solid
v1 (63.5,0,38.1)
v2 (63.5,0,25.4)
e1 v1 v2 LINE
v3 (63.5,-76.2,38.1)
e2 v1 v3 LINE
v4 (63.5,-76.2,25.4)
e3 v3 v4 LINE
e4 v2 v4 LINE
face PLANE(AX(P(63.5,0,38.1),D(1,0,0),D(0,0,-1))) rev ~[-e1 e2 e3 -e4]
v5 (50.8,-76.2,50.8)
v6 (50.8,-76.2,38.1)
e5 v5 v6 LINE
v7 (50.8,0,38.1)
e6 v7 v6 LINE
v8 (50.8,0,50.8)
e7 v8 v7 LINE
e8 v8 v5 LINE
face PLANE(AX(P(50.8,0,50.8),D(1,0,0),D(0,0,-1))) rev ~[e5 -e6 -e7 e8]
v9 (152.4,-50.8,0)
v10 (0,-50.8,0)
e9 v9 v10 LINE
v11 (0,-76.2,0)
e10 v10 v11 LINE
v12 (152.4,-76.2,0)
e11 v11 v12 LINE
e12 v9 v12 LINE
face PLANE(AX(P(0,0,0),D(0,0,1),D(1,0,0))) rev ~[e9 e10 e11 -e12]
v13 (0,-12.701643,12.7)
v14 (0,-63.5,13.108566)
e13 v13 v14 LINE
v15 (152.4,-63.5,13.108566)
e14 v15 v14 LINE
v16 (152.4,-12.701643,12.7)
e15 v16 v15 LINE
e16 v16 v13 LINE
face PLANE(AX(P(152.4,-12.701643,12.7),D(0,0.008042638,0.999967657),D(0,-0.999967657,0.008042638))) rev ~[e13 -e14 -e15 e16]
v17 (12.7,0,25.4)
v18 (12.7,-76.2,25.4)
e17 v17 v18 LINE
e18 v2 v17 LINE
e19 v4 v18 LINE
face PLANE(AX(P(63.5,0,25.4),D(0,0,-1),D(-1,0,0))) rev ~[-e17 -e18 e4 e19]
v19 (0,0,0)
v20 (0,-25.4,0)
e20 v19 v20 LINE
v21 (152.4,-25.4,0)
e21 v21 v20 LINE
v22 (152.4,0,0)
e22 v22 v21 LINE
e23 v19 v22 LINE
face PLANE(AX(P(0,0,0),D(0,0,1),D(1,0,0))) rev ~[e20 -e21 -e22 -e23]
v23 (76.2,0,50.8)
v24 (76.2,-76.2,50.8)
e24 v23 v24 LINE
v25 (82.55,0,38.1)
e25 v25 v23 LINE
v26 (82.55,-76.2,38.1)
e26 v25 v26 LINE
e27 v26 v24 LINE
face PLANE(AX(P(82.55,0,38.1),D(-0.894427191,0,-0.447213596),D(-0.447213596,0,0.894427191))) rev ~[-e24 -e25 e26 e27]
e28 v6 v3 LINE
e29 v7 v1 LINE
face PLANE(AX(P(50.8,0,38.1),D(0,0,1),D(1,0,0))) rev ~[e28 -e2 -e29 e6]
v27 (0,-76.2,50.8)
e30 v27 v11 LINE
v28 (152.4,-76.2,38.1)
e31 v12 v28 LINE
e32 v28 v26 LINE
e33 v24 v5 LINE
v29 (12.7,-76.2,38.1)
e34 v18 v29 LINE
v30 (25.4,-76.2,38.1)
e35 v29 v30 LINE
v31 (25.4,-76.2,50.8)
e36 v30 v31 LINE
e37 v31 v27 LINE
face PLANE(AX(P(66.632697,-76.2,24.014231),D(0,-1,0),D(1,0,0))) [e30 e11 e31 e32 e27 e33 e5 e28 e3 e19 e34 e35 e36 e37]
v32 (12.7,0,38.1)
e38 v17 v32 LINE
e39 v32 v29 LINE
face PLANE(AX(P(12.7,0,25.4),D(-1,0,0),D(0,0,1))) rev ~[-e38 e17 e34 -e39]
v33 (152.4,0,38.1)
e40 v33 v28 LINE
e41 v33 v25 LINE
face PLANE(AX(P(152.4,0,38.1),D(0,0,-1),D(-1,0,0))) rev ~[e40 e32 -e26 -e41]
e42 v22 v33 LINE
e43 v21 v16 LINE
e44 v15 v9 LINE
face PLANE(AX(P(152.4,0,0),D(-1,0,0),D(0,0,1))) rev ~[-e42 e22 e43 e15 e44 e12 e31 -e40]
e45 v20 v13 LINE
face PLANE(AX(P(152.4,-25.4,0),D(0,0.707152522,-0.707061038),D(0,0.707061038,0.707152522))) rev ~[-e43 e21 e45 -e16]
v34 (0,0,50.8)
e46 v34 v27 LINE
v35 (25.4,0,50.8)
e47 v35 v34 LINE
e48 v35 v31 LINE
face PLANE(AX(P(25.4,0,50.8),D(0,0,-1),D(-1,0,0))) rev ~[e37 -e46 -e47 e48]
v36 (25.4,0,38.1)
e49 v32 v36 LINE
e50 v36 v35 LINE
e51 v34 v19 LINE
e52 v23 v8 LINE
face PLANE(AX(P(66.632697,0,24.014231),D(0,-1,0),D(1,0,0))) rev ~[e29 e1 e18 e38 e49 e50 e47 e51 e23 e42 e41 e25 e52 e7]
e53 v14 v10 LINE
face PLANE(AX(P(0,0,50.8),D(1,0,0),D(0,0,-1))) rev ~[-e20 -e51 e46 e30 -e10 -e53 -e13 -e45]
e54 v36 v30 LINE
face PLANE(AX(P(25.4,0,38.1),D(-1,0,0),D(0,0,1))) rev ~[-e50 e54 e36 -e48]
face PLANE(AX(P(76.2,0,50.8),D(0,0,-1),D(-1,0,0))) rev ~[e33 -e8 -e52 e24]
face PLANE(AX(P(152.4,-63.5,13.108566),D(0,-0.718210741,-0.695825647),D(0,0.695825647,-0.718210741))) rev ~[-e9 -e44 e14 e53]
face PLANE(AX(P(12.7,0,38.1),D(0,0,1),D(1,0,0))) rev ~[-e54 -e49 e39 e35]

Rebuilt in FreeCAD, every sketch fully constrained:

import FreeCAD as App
import Part
import Sketcher
Q = App.Units.Quantity


def add_polygon(sketch, points):
    """Adds a closed chain of lines whose ends are joined by coincident constraints."""
    first, n = sketch.GeometryCount, len(points)
    for a, b in zip(points, points[1:] + points[:1]):
        sketch.addGeometry(Part.LineSegment(App.Vector(*a, 0), App.Vector(*b, 0)), False)
    for i in range(n):
        sketch.addConstraint(Sketcher.Constraint("Coincident", first + i, 2, first + (i + 1) % n, 1))

doc = App.newDocument("Part")
body = doc.addObject("PartDesign::Body", "Body")

# Sketch on XZ plane
sketch1 = body.newObject("Sketcher::SketchObject", "Sketch")
sketch1.AttachmentSupport = (doc.getObject("XZ_Plane"), [""])
sketch1.MapMode = "FlatFace"
add_polygon(sketch1, [(0, 51), (0, 0), (152, 0), (152, 38), (83, 38), (76, 51), (51, 51), (51, 38), (64, 38), (64, 25), (13, 25), (13, 38), (25, 38), (25, 51)])  # lines 0-13
sketch1.addConstraint(Sketcher.Constraint("Vertical", 0))
sketch1.addConstraint(Sketcher.Constraint("Horizontal", 1))
sketch1.addConstraint(Sketcher.Constraint("Vertical", 2))
sketch1.addConstraint(Sketcher.Constraint("Horizontal", 3))
sketch1.addConstraint(Sketcher.Constraint("Horizontal", 5))
sketch1.addConstraint(Sketcher.Constraint("Vertical", 6))
sketch1.addConstraint(Sketcher.Constraint("Horizontal", 7))
sketch1.addConstraint(Sketcher.Constraint("Vertical", 8))
sketch1.addConstraint(Sketcher.Constraint("Horizontal", 9))
sketch1.addConstraint(Sketcher.Constraint("Vertical", 10))
sketch1.addConstraint(Sketcher.Constraint("Horizontal", 11))
sketch1.addConstraint(Sketcher.Constraint("Vertical", 12))
sketch1.addConstraint(Sketcher.Constraint("Horizontal", 13))
sketch1.addConstraint(Sketcher.Constraint("Coincident", 0, 2, -1, 1))
sketch1.addConstraint(Sketcher.Constraint("Horizontal", 3, 2, 6, 2))
sketch1.addConstraint(Sketcher.Constraint("Horizontal", 7, 2, 10, 2))
sketch1.addConstraint(Sketcher.Constraint("Horizontal", 5, 2, 12, 2))
sketch1.addConstraint(Sketcher.Constraint("Equal", 7, 11))
sketch1.addConstraint(Sketcher.Constraint("Equal", 5, 13))
sketch1.addConstraint(Sketcher.Constraint("Equal", 9, 0))
sketch1.addConstraint(Sketcher.Constraint("Equal", 11, 6))
sketch1.addConstraint(Sketcher.Constraint("Equal", 6, 8))
sketch1.addConstraint(Sketcher.Constraint("DistanceX", 1, 1, 1, 2, Q("6 in")))
sketch1.addConstraint(Sketcher.Constraint("DistanceX", 5, 2, 5, 1, Q("1 in")))
sketch1.addConstraint(Sketcher.Constraint("DistanceX", 9, 2, 9, 1, Q("2 in")))
sketch1.addConstraint(Sketcher.Constraint("DistanceX", 7, 1, 7, 2, Q("0.5 in")))
sketch1.addConstraint(Sketcher.Constraint("DistanceX", 3, 2, 3, 1, Q("2.75 in")))
pad1 = body.newObject("PartDesign::Pad", "Pad")
pad1.Profile = sketch1
pad1.Length = Q("3 in")

# Sketch on YZ plane
sketch2 = body.newObject("Sketcher::SketchObject", "Sketch001")
sketch2.AttachmentSupport = (doc.getObject("YZ_Plane"), [""])
sketch2.MapMode = "FlatFace"
sketch2.AttachmentOffset = App.Placement(App.Vector(0, 0, 6 * 25.4), App.Rotation())
add_polygon(sketch2, [(-13, 13), (-64, 13), (-51, 0), (-25, 0)])  # lines 0-3
sketch2.addConstraint(Sketcher.Constraint("Horizontal", 2))
sketch2.addConstraint(Sketcher.Constraint("PointOnObject", 1, 2, -1))
sketch2.addConstraint(Sketcher.Constraint("DistanceX", 2, 1, 2, 2, Q("1 in")))
sketch2.addConstraint(Sketcher.Constraint("Distance", 0, Q("2 in")))
sketch2.addConstraint(Sketcher.Constraint("DistanceX", 1, 2, -1, 1, Q("2 in")))
sketch2.addConstraint(Sketcher.Constraint("DistanceX", 0, 2, -1, 1, Q("2.5 in")))
sketch2.addConstraint(Sketcher.Constraint("DistanceY", -1, 1, 3, 2, Q("0.5 in")))
sketch2.addConstraint(Sketcher.Constraint("Distance", 1, 18.251699))
pocket1 = body.newObject("PartDesign::Pocket", "Pocket")
pocket1.Profile = sketch2
pocket1.Length = Q("6 in")

doc.recompute()
